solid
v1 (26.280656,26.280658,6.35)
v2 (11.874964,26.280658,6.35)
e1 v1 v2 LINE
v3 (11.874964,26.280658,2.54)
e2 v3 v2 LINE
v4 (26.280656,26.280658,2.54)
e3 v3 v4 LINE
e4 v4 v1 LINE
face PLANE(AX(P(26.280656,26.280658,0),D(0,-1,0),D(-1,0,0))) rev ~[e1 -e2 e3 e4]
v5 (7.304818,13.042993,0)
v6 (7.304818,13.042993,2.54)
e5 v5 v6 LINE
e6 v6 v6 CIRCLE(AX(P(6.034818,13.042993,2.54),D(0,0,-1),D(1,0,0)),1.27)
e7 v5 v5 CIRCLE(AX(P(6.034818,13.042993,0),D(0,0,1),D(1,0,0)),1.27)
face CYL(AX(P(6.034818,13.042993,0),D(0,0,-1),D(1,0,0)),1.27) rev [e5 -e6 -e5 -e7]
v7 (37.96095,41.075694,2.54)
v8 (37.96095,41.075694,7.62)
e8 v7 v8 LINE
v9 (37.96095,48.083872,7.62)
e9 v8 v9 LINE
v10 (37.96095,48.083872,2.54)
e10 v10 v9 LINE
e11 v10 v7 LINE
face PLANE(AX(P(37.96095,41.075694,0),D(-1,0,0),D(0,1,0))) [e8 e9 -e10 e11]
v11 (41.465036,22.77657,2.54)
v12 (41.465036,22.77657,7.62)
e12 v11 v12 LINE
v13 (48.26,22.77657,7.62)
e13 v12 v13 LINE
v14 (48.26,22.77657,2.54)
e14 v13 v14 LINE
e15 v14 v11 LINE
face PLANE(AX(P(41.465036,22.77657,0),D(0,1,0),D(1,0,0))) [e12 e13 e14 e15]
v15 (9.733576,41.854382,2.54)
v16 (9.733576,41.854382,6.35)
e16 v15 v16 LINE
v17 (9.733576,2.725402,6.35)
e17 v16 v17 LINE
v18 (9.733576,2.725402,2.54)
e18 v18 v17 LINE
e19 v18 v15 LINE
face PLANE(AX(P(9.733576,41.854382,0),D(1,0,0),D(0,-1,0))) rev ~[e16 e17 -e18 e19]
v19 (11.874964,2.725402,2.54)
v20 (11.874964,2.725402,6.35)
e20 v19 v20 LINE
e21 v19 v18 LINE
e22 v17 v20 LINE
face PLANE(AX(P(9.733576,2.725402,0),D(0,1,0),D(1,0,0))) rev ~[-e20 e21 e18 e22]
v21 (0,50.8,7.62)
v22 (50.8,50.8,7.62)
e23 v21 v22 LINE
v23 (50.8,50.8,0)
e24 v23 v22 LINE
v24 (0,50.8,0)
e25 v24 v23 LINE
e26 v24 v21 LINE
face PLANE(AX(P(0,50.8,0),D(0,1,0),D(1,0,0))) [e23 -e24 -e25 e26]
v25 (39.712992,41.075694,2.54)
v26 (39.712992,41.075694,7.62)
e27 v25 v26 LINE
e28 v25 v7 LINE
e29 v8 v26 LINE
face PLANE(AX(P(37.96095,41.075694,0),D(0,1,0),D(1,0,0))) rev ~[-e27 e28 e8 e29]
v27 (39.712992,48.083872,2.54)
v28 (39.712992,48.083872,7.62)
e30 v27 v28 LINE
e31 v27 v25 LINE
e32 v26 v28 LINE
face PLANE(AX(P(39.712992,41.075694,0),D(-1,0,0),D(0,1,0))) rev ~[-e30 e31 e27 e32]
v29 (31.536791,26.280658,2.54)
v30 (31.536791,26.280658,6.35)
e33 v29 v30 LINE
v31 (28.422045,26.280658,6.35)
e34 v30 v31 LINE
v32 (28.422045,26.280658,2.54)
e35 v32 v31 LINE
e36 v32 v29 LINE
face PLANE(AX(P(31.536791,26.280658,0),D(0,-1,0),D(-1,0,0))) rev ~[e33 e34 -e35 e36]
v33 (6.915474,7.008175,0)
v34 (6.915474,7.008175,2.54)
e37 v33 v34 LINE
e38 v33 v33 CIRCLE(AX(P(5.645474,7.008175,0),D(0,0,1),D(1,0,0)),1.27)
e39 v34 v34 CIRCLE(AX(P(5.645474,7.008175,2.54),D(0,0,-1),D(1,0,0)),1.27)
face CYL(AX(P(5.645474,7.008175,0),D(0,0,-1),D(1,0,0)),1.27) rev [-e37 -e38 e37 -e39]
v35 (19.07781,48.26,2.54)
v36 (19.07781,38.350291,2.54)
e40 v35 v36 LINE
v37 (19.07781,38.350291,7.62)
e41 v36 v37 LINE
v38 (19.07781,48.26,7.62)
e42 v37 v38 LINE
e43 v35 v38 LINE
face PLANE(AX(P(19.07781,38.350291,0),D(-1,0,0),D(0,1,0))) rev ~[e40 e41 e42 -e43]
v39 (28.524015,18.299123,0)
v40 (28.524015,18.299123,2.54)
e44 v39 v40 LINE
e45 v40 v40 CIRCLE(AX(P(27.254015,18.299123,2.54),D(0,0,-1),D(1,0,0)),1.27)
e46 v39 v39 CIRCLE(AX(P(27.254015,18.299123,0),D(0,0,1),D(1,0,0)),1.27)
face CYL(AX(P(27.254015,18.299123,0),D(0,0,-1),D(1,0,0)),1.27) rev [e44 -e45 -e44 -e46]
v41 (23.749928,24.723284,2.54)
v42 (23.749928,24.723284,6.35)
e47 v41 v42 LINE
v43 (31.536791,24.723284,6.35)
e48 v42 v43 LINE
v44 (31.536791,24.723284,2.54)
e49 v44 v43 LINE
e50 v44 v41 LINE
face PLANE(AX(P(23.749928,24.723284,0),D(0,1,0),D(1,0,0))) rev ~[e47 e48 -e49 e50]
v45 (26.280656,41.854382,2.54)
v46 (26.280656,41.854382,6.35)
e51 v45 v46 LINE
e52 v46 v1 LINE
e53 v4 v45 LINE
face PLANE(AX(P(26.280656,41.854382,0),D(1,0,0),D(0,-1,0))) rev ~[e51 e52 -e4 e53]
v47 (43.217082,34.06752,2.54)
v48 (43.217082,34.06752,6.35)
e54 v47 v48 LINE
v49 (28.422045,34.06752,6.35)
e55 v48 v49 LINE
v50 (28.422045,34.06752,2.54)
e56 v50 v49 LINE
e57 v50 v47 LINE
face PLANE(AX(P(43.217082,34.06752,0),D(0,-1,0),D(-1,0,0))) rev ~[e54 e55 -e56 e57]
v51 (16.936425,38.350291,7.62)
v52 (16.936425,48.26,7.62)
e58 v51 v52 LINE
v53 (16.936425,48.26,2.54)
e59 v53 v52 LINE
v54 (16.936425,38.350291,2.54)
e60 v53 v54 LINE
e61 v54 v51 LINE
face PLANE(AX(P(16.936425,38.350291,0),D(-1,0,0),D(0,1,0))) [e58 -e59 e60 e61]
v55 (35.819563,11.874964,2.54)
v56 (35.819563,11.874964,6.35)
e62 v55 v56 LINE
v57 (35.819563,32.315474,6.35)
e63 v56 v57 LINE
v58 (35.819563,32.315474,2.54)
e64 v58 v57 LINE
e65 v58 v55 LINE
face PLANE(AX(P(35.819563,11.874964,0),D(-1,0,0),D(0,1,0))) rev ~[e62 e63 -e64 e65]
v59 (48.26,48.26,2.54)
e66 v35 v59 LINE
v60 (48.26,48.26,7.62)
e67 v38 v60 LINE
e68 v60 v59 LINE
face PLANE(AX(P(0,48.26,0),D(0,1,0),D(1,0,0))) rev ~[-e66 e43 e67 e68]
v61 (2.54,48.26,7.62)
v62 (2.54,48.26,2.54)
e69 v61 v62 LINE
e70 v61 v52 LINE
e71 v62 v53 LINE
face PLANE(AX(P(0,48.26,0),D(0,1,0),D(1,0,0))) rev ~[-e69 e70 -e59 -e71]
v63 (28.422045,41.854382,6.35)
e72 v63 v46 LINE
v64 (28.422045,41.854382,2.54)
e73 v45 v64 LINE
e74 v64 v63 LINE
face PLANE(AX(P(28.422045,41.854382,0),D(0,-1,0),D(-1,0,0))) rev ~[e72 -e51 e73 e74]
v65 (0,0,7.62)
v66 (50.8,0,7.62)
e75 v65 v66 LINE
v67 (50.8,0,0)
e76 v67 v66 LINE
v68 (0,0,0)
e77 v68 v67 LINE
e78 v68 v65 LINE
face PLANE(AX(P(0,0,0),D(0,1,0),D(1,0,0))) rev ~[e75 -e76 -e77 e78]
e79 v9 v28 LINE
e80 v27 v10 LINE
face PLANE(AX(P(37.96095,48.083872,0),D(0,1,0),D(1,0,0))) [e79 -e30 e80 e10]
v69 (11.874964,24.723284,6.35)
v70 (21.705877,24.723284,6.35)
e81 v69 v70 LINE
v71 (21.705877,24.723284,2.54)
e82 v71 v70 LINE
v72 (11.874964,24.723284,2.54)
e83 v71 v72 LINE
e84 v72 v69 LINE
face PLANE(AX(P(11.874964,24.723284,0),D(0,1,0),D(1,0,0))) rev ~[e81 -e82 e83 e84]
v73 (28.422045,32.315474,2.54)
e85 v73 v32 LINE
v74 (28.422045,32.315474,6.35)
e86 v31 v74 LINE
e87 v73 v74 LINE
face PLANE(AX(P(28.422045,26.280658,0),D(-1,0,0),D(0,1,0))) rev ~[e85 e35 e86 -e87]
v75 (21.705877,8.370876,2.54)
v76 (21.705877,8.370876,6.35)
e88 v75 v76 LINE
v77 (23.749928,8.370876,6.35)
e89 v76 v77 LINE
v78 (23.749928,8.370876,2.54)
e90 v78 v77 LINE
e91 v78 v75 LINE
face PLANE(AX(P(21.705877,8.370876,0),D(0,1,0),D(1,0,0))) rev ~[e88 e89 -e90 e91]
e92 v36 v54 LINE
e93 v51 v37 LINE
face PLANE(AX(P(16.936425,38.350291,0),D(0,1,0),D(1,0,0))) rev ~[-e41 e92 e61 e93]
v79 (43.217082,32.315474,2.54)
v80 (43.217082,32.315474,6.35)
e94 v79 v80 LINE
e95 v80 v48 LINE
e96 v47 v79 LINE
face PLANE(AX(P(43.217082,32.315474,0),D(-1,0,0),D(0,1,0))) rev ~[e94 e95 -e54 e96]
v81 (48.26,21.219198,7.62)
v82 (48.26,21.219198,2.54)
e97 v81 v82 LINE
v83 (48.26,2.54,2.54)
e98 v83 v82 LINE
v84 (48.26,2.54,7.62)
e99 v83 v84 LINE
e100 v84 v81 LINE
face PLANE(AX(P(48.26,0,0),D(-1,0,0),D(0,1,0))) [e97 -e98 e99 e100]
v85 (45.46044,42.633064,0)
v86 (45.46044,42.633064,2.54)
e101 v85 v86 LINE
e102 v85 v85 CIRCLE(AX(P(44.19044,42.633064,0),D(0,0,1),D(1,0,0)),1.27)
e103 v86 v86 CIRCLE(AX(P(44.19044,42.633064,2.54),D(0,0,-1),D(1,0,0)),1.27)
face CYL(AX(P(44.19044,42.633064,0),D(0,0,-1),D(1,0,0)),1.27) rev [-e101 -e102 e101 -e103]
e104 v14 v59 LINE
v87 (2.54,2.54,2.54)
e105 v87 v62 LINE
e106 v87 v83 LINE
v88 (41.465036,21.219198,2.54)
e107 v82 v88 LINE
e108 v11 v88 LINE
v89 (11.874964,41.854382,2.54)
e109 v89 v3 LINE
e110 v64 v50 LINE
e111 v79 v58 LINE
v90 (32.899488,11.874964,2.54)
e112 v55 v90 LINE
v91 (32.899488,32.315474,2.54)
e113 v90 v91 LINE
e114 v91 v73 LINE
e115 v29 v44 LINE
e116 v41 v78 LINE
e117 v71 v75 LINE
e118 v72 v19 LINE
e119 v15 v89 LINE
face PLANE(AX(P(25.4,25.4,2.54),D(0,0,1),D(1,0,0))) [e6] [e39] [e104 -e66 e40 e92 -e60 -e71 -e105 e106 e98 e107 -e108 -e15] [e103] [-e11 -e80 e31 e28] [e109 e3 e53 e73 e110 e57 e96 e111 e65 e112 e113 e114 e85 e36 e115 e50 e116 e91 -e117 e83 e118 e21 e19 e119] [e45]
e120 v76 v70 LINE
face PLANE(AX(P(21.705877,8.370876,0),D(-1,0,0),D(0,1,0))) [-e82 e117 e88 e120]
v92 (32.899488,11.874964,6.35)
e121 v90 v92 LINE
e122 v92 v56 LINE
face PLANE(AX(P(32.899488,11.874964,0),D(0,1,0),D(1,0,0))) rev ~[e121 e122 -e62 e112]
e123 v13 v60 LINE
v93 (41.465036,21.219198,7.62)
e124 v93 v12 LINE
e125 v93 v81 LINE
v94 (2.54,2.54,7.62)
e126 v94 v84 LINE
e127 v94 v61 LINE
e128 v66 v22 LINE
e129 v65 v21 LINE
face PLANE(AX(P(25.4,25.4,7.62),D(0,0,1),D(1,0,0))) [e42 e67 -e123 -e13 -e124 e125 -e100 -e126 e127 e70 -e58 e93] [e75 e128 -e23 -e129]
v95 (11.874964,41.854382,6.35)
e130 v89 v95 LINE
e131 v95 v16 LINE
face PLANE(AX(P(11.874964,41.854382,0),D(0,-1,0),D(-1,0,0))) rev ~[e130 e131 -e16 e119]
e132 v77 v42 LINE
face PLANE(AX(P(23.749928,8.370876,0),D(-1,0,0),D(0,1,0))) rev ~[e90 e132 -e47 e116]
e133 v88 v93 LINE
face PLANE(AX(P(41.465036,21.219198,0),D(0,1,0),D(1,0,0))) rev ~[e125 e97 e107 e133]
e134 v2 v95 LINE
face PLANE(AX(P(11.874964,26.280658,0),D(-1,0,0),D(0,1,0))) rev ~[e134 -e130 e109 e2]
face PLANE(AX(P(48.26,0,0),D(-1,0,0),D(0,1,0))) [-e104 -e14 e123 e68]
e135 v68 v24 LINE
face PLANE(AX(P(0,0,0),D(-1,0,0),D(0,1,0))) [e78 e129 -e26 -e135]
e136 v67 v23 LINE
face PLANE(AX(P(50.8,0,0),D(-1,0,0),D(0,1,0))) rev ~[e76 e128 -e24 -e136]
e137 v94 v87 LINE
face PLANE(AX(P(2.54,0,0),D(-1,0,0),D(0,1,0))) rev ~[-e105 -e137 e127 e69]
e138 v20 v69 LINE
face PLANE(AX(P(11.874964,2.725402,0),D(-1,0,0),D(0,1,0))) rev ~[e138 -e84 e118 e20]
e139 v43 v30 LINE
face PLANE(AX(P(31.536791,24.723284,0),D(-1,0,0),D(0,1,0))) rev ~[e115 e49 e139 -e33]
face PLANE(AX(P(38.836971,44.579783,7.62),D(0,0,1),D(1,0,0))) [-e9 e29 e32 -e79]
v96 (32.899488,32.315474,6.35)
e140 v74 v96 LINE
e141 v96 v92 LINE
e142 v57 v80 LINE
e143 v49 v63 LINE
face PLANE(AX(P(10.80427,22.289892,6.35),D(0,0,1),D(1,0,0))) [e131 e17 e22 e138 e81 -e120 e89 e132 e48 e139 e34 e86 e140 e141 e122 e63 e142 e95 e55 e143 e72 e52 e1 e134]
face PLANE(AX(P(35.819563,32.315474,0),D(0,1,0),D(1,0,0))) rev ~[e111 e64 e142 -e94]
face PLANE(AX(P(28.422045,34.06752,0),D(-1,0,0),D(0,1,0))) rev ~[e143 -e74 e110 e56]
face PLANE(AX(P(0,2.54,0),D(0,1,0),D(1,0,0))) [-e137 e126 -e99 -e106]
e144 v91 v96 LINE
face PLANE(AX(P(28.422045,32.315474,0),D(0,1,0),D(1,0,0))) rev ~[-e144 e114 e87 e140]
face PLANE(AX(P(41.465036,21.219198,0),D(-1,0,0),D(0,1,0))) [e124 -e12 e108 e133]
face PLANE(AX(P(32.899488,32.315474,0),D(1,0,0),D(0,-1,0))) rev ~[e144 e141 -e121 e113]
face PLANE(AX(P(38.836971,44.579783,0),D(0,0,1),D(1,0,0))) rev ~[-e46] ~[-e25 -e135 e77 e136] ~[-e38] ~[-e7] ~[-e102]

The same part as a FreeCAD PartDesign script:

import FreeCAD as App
import Part
import Sketcher
from FreeCAD import Vector
Q = App.Units.Quantity


def faces_at(feature, points):
    """Names of the faces that lie closest to the given points."""
    faces = feature.Shape.Faces
    near = lambda p: min(range(len(faces)), key=lambda i: faces[i].distToShape(Part.Vertex(*p))[0])
    return sorted({f"Face{near(p) + 1}" for p in points})


def add_polygon(sketch, points):
    """Adds a closed chain of lines whose ends are joined by coincident constraints."""
    first, n = sketch.GeometryCount, len(points)
    for a, b in zip(points, points[1:] + points[:1]):
        sketch.addGeometry(Part.LineSegment(App.Vector(*a, 0), App.Vector(*b, 0)), False)
    for i in range(n):
        sketch.addConstraint(Sketcher.Constraint("Coincident", first + i, 2, first + (i + 1) % n, 1))

doc = App.newDocument("Part")
body = doc.addObject("PartDesign::Body", "Body")

sketch1 = doc.addObject("Sketcher::SketchObject", "Sketch")
body.addObject(sketch1)
sketch1.AttachmentSupport = (doc.XY_Plane, [""])
sketch1.MapMode = "FlatFace"
add_polygon(sketch1, [(0, 51), (0, 0), (51, 0), (51, 51)])
sketch1.addConstraint(Sketcher.Constraint("Vertical", 0))
sketch1.addConstraint(Sketcher.Constraint("Horizontal", 1))
sketch1.addConstraint(Sketcher.Constraint("Vertical", 2))
sketch1.addConstraint(Sketcher.Constraint("Horizontal", 3))
sketch1.addConstraint(Sketcher.Constraint("Coincident", 0, 2, -1, 1))
sketch1.addConstraint(Sketcher.Constraint("Equal", 3, 0))
sketch1.addConstraint(Sketcher.Constraint("DistanceX", 1, 1, 1, 2, Q("2 in")))
pad1 = doc.addObject("PartDesign::Pad", "Pad")
body.addObject(pad1)
pad1.Profile = sketch1
pad1.Length = Q("0.3 in")
doc.recompute()

thickness = doc.addObject("PartDesign::Thickness", "Thickness")
body.addObject(thickness)
thickness.Base = (pad1, faces_at(pad1, [(25.4, 25.4, 7.62)]))
thickness.Value = Q("0.1 in")
thickness.Reversed = True
thickness.Join = "Arc"

sketch2 = doc.addObject("Sketcher::SketchObject", "Sketch001")
body.addObject(sketch2)
sketch2.AttachmentSupport = (doc.XY_Plane, [""])
sketch2.MapMode = "FlatFace"
add_polygon(sketch2, [(9.7, 41.9), (9.7, 2.7), (11.9, 2.7), (11.9, 24.7), (21.7, 24.7), (21.7, 8.4), (23.7, 8.4), (23.7, 24.7), (31.5, 24.7), (31.5, 26.3), (28.4, 26.3), (28.4, 32.3), (32.9, 32.3), (32.9, 11.9), (35.8, 11.9), (35.8, 32.3), (43.2, 32.3), (43.2, 34.1), (28.4, 34.1), (28.4, 41.9), (26.3, 41.9), (26.3, 26.3), (11.9, 26.3), (11.9, 41.9)])
sketch2.addConstraint(Sketcher.Constraint("Vertical", 0))
sketch2.addConstraint(Sketcher.Constraint("Horizontal", 1))
sketch2.addConstraint(Sketcher.Constraint("Vertical", 2))
sketch2.addConstraint(Sketcher.Constraint("Horizontal", 3))
sketch2.addConstraint(Sketcher.Constraint("Vertical", 4))
sketch2.addConstraint(Sketcher.Constraint("Horizontal", 5))
sketch2.addConstraint(Sketcher.Constraint("Vertical", 6))
sketch2.addConstraint(Sketcher.Constraint("Horizontal", 7))
sketch2.addConstraint(Sketcher.Constraint("Vertical", 8))
sketch2.addConstraint(Sketcher.Constraint("Horizontal", 9))
sketch2.addConstraint(Sketcher.Constraint("Vertical", 10))
sketch2.addConstraint(Sketcher.Constraint("Horizontal", 11))
sketch2.addConstraint(Sketcher.Constraint("Vertical", 12))
sketch2.addConstraint(Sketcher.Constraint("Horizontal", 13))
sketch2.addConstraint(Sketcher.Constraint("Vertical", 14))
sketch2.addConstraint(Sketcher.Constraint("Horizontal", 15))
sketch2.addConstraint(Sketcher.Constraint("Vertical", 16))
sketch2.addConstraint(Sketcher.Constraint("Horizontal", 17))
sketch2.addConstraint(Sketcher.Constraint("Vertical", 18))
sketch2.addConstraint(Sketcher.Constraint("Horizontal", 19))
sketch2.addConstraint(Sketcher.Constraint("Vertical", 20))
sketch2.addConstraint(Sketcher.Constraint("Horizontal", 21))
sketch2.addConstraint(Sketcher.Constraint("Vertical", 22))
sketch2.addConstraint(Sketcher.Constraint("Horizontal", 23))
sketch2.addConstraint(Sketcher.Constraint("Horizontal", 3, 2, 6, 2))
sketch2.addConstraint(Sketcher.Constraint("Horizontal", 11, 2, 14, 2))
sketch2.addConstraint(Sketcher.Constraint("Horizontal", 9, 2, 20, 2))
sketch2.addConstraint(Sketcher.Constraint("Horizontal", 19, 2, 22, 2))
sketch2.addConstraint(Sketcher.Constraint("Vertical", 10, 2, 17, 2))
sketch2.addConstraint(Sketcher.Constraint("Vertical", 2, 2, 21, 2))
sketch2.addConstraint(Sketcher.Constraint("Equal", 1, 19))
sketch2.addConstraint(Sketcher.Constraint("Equal", 7, 18))
sketch2.addConstraint(Sketcher.Constraint("DistanceX", 1, 1, 1, 2, Q("2.141388 mm")))
sketch2.addConstraint(Sketcher.Constraint("DistanceX", 5, 1, 5, 2, Q("2.044051 mm")))
sketch2.addConstraint(Sketcher.Constraint("DistanceX", 15, 1, 15, 2, Q("7.397519 mm")))
sketch2.addConstraint(Sketcher.Constraint("DistanceY", 0, 2, 0, 1, Q("39.12898 mm")))
sketch2.addConstraint(Sketcher.Constraint("DistanceY", 12, 2, 12, 1, Q("20.44051 mm")))
sketch2.addConstraint(Sketcher.Constraint("DistanceY", 18, 1, 18, 2, Q("7.786862 mm")))
sketch2.addConstraint(Sketcher.Constraint("DistanceY", -1, 1, 0, 2, Q("2.725402 mm")))
sketch2.addConstraint(Sketcher.Constraint("DistanceX", 0, 2, 3, 2, Q("11.972302 mm")))
sketch2.addConstraint(Sketcher.Constraint("DistanceY", 2, 2, 22, 2, Q("17.131098 mm")))
sketch2.addConstraint(Sketcher.Constraint("DistanceX", 9, 2, 9, 1, Q("3.114746 mm")))
sketch2.addConstraint(Sketcher.Constraint("DistanceX", 11, 1, 11, 2, Q("4.477443 mm")))
sketch2.addConstraint(Sketcher.Constraint("DistanceX", 13, 1, 13, 2, Q("2.920075 mm")))
sketch2.addConstraint(Sketcher.Constraint("DistanceY", 4, 2, 4, 1, Q("16.352408 mm")))
sketch2.addConstraint(Sketcher.Constraint("DistanceY", 8, 1, 8, 2, Q("1.557374 mm")))
sketch2.addConstraint(Sketcher.Constraint("DistanceY", 10, 1, 10, 2, Q("6.034816 mm")))
sketch2.addConstraint(Sketcher.Constraint("DistanceX", -1, 1, 5, 2, Q("23.749928 mm")))
pad2 = doc.addObject("PartDesign::Pad", "Pad001")
body.addObject(pad2)
pad2.Profile = sketch2
pad2.Length = Q("0.25 in")

sketch3 = doc.addObject("Sketcher::SketchObject", "Sketch002")
body.addObject(sketch3)
sketch3.AttachmentSupport = (doc.XY_Plane, [""])
sketch3.MapMode = "FlatFace"
add_polygon(sketch3, [(16.9, 48.5), (16.9, 38.4), (19.1, 38.4), (19.1, 48.5)])
add_polygon(sketch3, [(41.5, 22.8), (41.5, 21.2), (48.3, 21.2), (48.3, 22.8)])
sketch3.addConstraint(Sketcher.Constraint("Vertical", 0))
sketch3.addConstraint(Sketcher.Constraint("Horizontal", 1))
sketch3.addConstraint(Sketcher.Constraint("Vertical", 2))
sketch3.addConstraint(Sketcher.Constraint("Horizontal", 3))
sketch3.addConstraint(Sketcher.Constraint("Vertical", 4))
sketch3.addConstraint(Sketcher.Constraint("Horizontal", 5))
sketch3.addConstraint(Sketcher.Constraint("Vertical", 6))
sketch3.addConstraint(Sketcher.Constraint("Horizontal", 7))
sketch3.addConstraint(Sketcher.Constraint("DistanceY", 0, 2, 0, 1, Q("10.122921 mm")))
sketch3.addConstraint(Sketcher.Constraint("DistanceX", 1, 1, 1, 2, Q("2.141385 mm")))
sketch3.addConstraint(Sketcher.Constraint("DistanceX", 5, 1, 5, 2, Q("6.813503 mm")))
sketch3.addConstraint(Sketcher.Constraint("DistanceY", 4, 2, 4, 1, Q("1.557372 mm")))
sketch3.addConstraint(Sketcher.Constraint("DistanceY", -1, 1, 0, 2, Q("38.350291 mm")))
sketch3.addConstraint(Sketcher.Constraint("DistanceX", -1, 1, 1, 2, Q("19.07781 mm")))
sketch3.addConstraint(Sketcher.Constraint("DistanceX", -1, 1, 5, 2, Q("48.27854 mm")))
sketch3.addConstraint(Sketcher.Constraint("DistanceY", -1, 1, 6, 2, Q("22.77657 mm")))
pad3 = doc.addObject("PartDesign::Pad", "Pad002")
body.addObject(pad3)
pad3.Profile = sketch3
pad3.Length = Q("0.3 in")

sketch4 = doc.addObject("Sketcher::SketchObject", "Sketch003")
body.addObject(sketch4)
sketch4.AttachmentSupport = (doc.XY_Plane, [""])
sketch4.MapMode = "FlatFace"
add_polygon(sketch4, [(38, 48.1), (38, 41.1), (39.7, 41.1), (39.7, 48.1)])
sketch4.addConstraint(Sketcher.Constraint("Vertical", 0))
sketch4.addConstraint(Sketcher.Constraint("Horizontal", 1))
sketch4.addConstraint(Sketcher.Constraint("Vertical", 2))
sketch4.addConstraint(Sketcher.Constraint("Horizontal", 3))
sketch4.addConstraint(Sketcher.Constraint("DistanceX", 1, 1, 1, 2, Q("1.752042 mm")))
sketch4.addConstraint(Sketcher.Constraint("DistanceY", 0, 2, 0, 1, Q("7.008177 mm")))
sketch4.addConstraint(Sketcher.Constraint("DistanceX", -1, 1, 0, 2, Q("37.96095 mm")))
sketch4.addConstraint(Sketcher.Constraint("DistanceY", -1, 1, 2, 2, Q("48.083872 mm")))
pad4 = doc.addObject("PartDesign::Pad", "Pad003")
body.addObject(pad4)
pad4.Profile = sketch4
pad4.Length = Q("0.3 in")

sketch5 = doc.addObject("Sketcher::SketchObject", "Sketch004")
body.addObject(sketch5)
sketch5.AttachmentSupport = (doc.XY_Plane, [""])
sketch5.MapMode = "FlatFace"
sketch5.addGeometry(Part.Circle(Vector(5.6, 7, 0), Vector(0, 0, 1), 1.3), False)
sketch5.addGeometry(Part.Circle(Vector(6, 13, 0), Vector(0, 0, 1), 1.3), False)
sketch5.addGeometry(Part.Circle(Vector(44.2, 42.6, 0), Vector(0, 0, 1), 1.3), False)
sketch5.addConstraint(Sketcher.Constraint("Equal", 0, 1))
sketch5.addConstraint(Sketcher.Constraint("Equal", 1, 2))
sketch5.addConstraint(Sketcher.Constraint("Diameter", 0, Q("0.1 in")))
sketch5.addConstraint(Sketcher.Constraint("DistanceX", -1, 1, 2, 3, Q("44.19044 mm")))
sketch5.addConstraint(Sketcher.Constraint("DistanceY", 1, 3, 2, 3, Q("29.590071 mm")))
sketch5.addConstraint(Sketcher.Constraint("DistanceY", 0, 3, 2, 3, Q("35.624889 mm")))
sketch5.addConstraint(Sketcher.Constraint("DistanceX", -1, 1, 0, 3, Q("5.645474 mm")))
sketch5.addConstraint(Sketcher.Constraint("DistanceY", -1, 1, 0, 3, Q("7.008175 mm")))
sketch5.addConstraint(Sketcher.Constraint("DistanceX", -1, 1, 1, 3, Q("6.034818 mm")))
pocket1 = doc.addObject("PartDesign::Pocket", "Pocket")
body.addObject(pocket1)
pocket1.Profile = sketch5
pocket1.Length = Q("1 in")
pocket1.Reversed = True

sketch6 = doc.addObject("Sketcher::SketchObject", "Sketch005")
body.addObject(sketch6)
sketch6.AttachmentSupport = (doc.XY_Plane, [""])
sketch6.MapMode = "FlatFace"
sketch6.addGeometry(Part.Circle(Vector(27.3, 18.3, 0), Vector(0, 0, 1), 1.3), False)
sketch6.addConstraint(Sketcher.Constraint("Diameter", 0, Q("0.1 in")))
sketch6.addConstraint(Sketcher.Constraint("DistanceX", -1, 1, 0, 3, Q("27.254015 mm")))
sketch6.addConstraint(Sketcher.Constraint("DistanceY", -1, 1, 0, 3, Q("18.299123 mm")))
pocket2 = doc.addObject("PartDesign::Pocket", "Pocket001")
body.addObject(pocket2)
pocket2.Profile = sketch6
pocket2.Length = Q("1 in")
pocket2.Reversed = True

doc.recompute()
